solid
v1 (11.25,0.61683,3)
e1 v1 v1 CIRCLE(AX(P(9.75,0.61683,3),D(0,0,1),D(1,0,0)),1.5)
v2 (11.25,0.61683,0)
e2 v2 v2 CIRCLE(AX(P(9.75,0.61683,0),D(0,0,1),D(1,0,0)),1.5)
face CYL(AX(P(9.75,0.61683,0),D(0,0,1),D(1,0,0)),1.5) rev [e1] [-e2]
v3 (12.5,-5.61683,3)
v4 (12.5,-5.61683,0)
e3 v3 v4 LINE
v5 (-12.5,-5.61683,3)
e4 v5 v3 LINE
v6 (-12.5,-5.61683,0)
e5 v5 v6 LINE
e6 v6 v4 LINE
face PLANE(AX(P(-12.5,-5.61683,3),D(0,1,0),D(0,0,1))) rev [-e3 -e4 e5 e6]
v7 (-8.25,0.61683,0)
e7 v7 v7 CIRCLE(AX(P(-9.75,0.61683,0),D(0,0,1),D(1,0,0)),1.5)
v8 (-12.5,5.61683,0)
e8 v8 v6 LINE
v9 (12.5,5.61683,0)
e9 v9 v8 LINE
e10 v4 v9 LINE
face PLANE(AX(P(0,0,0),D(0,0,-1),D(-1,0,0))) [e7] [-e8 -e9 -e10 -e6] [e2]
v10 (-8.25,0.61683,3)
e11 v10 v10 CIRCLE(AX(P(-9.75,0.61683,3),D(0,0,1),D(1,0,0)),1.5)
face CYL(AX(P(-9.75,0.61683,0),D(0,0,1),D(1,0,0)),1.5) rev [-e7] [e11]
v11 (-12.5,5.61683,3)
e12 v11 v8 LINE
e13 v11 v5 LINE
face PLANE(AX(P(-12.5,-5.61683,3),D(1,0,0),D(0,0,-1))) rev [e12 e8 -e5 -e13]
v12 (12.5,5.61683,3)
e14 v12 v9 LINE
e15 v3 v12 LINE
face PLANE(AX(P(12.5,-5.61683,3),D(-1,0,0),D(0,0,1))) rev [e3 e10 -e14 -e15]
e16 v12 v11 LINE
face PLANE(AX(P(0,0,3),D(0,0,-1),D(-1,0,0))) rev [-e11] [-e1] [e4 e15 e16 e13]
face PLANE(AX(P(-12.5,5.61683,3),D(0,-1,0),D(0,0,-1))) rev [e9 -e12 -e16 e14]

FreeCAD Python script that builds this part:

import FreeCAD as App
import Part
import Sketcher
Q = App.Units.Quantity


def add_polygon(sketch, points):
    """Adds a closed chain of lines whose ends are joined by coincident constraints."""
    first, n = sketch.GeometryCount, len(points)
    for a, b in zip(points, points[1:] + points[:1]):
        sketch.addGeometry(Part.LineSegment(App.Vector(*a, 0), App.Vector(*b, 0)), False)
    for i in range(n):
        sketch.addConstraint(Sketcher.Constraint("Coincident", first + i, 2, first + (i + 1) % n, 1))

doc = App.newDocument("Part")
params = doc.addObject("Spreadsheet::Sheet", "Params")
for row, (alias, value) in enumerate([
    ("sketch1_width", "25 mm"),
    ("pad1_length", "3 mm"),
    ("sketch2_diameter", "3 mm"),
], start=1):
    params.set(f"A{row}", alias)
    params.set(f"B{row}", "=" + value)
    params.setAlias(f"B{row}", alias)

body = doc.addObject("PartDesign::Body", "Body")

sketch1 = doc.addObject("Sketcher::SketchObject", "Sketch")
body.addObject(sketch1)
sketch1.AttachmentSupport = (doc.XY_Plane, [""])
sketch1.MapMode = "FlatFace"
add_polygon(sketch1, [(-12.5, 5.61683), (-12.5, -5.61683), (12.5, -5.61683), (12.5, 5.61683)])
sketch1.addConstraint([
    Sketcher.Constraint("Vertical", 0),
    Sketcher.Constraint("Horizontal", 1),
    Sketcher.Constraint("Vertical", 2),
    Sketcher.Constraint("Horizontal", 3),
    Sketcher.Constraint("Symmetric", 0, 2, 2, 2, -1, 1),
    Sketcher.Constraint("DistanceX", 1, 1, 1, 2, Q("25 mm")),
    Sketcher.Constraint("DistanceY", 0, 2, 0, 1, Q("11.23366 mm")),
])
sketch1.setExpression("Constraints[9]", "Params.sketch1_width")
pad1 = doc.addObject("PartDesign::Pad", "Pad")
body.addObject(pad1)
pad1.Profile = sketch1
pad1.setExpression("Length", "Params.pad1_length")

sketch2 = doc.addObject("Sketcher::SketchObject", "Sketch001")
body.addObject(sketch2)
sketch2.AttachmentSupport = (doc.XY_Plane, [""])
sketch2.MapMode = "FlatFace"
sketch2.AttachmentOffset = App.Placement(App.Vector(0, 0, 3), App.Rotation())
sketch2.addGeometry([
    Part.Circle(App.Vector(-9.75, 0.61683, 0), App.Vector(0, 0, 1), 1.5),
    Part.Circle(App.Vector(9.75, 0.61683, 0), App.Vector(0, 0, 1), 1.5),
], False)
sketch2.addConstraint([
    Sketcher.Constraint("Equal", 0, 1),
    Sketcher.Constraint("Symmetric", 0, 3, 1, 3, -2),
    Sketcher.Constraint("Diameter", 0, Q("3 mm")),
    Sketcher.Constraint("DistanceX", 0, 3, 1, 3, Q("19.5 mm")),
    Sketcher.Constraint("DistanceY", -1, 1, 0, 3, Q("0.61683 mm")),
])
sketch2.setExpression("Constraints[2]", "Params.sketch2_diameter")
pocket1 = doc.addObject("PartDesign::Pocket", "Pocket")
body.addObject(pocket1)
pocket1.Profile = sketch2
pocket1.Type = "ThroughAll"

doc.recompute()
